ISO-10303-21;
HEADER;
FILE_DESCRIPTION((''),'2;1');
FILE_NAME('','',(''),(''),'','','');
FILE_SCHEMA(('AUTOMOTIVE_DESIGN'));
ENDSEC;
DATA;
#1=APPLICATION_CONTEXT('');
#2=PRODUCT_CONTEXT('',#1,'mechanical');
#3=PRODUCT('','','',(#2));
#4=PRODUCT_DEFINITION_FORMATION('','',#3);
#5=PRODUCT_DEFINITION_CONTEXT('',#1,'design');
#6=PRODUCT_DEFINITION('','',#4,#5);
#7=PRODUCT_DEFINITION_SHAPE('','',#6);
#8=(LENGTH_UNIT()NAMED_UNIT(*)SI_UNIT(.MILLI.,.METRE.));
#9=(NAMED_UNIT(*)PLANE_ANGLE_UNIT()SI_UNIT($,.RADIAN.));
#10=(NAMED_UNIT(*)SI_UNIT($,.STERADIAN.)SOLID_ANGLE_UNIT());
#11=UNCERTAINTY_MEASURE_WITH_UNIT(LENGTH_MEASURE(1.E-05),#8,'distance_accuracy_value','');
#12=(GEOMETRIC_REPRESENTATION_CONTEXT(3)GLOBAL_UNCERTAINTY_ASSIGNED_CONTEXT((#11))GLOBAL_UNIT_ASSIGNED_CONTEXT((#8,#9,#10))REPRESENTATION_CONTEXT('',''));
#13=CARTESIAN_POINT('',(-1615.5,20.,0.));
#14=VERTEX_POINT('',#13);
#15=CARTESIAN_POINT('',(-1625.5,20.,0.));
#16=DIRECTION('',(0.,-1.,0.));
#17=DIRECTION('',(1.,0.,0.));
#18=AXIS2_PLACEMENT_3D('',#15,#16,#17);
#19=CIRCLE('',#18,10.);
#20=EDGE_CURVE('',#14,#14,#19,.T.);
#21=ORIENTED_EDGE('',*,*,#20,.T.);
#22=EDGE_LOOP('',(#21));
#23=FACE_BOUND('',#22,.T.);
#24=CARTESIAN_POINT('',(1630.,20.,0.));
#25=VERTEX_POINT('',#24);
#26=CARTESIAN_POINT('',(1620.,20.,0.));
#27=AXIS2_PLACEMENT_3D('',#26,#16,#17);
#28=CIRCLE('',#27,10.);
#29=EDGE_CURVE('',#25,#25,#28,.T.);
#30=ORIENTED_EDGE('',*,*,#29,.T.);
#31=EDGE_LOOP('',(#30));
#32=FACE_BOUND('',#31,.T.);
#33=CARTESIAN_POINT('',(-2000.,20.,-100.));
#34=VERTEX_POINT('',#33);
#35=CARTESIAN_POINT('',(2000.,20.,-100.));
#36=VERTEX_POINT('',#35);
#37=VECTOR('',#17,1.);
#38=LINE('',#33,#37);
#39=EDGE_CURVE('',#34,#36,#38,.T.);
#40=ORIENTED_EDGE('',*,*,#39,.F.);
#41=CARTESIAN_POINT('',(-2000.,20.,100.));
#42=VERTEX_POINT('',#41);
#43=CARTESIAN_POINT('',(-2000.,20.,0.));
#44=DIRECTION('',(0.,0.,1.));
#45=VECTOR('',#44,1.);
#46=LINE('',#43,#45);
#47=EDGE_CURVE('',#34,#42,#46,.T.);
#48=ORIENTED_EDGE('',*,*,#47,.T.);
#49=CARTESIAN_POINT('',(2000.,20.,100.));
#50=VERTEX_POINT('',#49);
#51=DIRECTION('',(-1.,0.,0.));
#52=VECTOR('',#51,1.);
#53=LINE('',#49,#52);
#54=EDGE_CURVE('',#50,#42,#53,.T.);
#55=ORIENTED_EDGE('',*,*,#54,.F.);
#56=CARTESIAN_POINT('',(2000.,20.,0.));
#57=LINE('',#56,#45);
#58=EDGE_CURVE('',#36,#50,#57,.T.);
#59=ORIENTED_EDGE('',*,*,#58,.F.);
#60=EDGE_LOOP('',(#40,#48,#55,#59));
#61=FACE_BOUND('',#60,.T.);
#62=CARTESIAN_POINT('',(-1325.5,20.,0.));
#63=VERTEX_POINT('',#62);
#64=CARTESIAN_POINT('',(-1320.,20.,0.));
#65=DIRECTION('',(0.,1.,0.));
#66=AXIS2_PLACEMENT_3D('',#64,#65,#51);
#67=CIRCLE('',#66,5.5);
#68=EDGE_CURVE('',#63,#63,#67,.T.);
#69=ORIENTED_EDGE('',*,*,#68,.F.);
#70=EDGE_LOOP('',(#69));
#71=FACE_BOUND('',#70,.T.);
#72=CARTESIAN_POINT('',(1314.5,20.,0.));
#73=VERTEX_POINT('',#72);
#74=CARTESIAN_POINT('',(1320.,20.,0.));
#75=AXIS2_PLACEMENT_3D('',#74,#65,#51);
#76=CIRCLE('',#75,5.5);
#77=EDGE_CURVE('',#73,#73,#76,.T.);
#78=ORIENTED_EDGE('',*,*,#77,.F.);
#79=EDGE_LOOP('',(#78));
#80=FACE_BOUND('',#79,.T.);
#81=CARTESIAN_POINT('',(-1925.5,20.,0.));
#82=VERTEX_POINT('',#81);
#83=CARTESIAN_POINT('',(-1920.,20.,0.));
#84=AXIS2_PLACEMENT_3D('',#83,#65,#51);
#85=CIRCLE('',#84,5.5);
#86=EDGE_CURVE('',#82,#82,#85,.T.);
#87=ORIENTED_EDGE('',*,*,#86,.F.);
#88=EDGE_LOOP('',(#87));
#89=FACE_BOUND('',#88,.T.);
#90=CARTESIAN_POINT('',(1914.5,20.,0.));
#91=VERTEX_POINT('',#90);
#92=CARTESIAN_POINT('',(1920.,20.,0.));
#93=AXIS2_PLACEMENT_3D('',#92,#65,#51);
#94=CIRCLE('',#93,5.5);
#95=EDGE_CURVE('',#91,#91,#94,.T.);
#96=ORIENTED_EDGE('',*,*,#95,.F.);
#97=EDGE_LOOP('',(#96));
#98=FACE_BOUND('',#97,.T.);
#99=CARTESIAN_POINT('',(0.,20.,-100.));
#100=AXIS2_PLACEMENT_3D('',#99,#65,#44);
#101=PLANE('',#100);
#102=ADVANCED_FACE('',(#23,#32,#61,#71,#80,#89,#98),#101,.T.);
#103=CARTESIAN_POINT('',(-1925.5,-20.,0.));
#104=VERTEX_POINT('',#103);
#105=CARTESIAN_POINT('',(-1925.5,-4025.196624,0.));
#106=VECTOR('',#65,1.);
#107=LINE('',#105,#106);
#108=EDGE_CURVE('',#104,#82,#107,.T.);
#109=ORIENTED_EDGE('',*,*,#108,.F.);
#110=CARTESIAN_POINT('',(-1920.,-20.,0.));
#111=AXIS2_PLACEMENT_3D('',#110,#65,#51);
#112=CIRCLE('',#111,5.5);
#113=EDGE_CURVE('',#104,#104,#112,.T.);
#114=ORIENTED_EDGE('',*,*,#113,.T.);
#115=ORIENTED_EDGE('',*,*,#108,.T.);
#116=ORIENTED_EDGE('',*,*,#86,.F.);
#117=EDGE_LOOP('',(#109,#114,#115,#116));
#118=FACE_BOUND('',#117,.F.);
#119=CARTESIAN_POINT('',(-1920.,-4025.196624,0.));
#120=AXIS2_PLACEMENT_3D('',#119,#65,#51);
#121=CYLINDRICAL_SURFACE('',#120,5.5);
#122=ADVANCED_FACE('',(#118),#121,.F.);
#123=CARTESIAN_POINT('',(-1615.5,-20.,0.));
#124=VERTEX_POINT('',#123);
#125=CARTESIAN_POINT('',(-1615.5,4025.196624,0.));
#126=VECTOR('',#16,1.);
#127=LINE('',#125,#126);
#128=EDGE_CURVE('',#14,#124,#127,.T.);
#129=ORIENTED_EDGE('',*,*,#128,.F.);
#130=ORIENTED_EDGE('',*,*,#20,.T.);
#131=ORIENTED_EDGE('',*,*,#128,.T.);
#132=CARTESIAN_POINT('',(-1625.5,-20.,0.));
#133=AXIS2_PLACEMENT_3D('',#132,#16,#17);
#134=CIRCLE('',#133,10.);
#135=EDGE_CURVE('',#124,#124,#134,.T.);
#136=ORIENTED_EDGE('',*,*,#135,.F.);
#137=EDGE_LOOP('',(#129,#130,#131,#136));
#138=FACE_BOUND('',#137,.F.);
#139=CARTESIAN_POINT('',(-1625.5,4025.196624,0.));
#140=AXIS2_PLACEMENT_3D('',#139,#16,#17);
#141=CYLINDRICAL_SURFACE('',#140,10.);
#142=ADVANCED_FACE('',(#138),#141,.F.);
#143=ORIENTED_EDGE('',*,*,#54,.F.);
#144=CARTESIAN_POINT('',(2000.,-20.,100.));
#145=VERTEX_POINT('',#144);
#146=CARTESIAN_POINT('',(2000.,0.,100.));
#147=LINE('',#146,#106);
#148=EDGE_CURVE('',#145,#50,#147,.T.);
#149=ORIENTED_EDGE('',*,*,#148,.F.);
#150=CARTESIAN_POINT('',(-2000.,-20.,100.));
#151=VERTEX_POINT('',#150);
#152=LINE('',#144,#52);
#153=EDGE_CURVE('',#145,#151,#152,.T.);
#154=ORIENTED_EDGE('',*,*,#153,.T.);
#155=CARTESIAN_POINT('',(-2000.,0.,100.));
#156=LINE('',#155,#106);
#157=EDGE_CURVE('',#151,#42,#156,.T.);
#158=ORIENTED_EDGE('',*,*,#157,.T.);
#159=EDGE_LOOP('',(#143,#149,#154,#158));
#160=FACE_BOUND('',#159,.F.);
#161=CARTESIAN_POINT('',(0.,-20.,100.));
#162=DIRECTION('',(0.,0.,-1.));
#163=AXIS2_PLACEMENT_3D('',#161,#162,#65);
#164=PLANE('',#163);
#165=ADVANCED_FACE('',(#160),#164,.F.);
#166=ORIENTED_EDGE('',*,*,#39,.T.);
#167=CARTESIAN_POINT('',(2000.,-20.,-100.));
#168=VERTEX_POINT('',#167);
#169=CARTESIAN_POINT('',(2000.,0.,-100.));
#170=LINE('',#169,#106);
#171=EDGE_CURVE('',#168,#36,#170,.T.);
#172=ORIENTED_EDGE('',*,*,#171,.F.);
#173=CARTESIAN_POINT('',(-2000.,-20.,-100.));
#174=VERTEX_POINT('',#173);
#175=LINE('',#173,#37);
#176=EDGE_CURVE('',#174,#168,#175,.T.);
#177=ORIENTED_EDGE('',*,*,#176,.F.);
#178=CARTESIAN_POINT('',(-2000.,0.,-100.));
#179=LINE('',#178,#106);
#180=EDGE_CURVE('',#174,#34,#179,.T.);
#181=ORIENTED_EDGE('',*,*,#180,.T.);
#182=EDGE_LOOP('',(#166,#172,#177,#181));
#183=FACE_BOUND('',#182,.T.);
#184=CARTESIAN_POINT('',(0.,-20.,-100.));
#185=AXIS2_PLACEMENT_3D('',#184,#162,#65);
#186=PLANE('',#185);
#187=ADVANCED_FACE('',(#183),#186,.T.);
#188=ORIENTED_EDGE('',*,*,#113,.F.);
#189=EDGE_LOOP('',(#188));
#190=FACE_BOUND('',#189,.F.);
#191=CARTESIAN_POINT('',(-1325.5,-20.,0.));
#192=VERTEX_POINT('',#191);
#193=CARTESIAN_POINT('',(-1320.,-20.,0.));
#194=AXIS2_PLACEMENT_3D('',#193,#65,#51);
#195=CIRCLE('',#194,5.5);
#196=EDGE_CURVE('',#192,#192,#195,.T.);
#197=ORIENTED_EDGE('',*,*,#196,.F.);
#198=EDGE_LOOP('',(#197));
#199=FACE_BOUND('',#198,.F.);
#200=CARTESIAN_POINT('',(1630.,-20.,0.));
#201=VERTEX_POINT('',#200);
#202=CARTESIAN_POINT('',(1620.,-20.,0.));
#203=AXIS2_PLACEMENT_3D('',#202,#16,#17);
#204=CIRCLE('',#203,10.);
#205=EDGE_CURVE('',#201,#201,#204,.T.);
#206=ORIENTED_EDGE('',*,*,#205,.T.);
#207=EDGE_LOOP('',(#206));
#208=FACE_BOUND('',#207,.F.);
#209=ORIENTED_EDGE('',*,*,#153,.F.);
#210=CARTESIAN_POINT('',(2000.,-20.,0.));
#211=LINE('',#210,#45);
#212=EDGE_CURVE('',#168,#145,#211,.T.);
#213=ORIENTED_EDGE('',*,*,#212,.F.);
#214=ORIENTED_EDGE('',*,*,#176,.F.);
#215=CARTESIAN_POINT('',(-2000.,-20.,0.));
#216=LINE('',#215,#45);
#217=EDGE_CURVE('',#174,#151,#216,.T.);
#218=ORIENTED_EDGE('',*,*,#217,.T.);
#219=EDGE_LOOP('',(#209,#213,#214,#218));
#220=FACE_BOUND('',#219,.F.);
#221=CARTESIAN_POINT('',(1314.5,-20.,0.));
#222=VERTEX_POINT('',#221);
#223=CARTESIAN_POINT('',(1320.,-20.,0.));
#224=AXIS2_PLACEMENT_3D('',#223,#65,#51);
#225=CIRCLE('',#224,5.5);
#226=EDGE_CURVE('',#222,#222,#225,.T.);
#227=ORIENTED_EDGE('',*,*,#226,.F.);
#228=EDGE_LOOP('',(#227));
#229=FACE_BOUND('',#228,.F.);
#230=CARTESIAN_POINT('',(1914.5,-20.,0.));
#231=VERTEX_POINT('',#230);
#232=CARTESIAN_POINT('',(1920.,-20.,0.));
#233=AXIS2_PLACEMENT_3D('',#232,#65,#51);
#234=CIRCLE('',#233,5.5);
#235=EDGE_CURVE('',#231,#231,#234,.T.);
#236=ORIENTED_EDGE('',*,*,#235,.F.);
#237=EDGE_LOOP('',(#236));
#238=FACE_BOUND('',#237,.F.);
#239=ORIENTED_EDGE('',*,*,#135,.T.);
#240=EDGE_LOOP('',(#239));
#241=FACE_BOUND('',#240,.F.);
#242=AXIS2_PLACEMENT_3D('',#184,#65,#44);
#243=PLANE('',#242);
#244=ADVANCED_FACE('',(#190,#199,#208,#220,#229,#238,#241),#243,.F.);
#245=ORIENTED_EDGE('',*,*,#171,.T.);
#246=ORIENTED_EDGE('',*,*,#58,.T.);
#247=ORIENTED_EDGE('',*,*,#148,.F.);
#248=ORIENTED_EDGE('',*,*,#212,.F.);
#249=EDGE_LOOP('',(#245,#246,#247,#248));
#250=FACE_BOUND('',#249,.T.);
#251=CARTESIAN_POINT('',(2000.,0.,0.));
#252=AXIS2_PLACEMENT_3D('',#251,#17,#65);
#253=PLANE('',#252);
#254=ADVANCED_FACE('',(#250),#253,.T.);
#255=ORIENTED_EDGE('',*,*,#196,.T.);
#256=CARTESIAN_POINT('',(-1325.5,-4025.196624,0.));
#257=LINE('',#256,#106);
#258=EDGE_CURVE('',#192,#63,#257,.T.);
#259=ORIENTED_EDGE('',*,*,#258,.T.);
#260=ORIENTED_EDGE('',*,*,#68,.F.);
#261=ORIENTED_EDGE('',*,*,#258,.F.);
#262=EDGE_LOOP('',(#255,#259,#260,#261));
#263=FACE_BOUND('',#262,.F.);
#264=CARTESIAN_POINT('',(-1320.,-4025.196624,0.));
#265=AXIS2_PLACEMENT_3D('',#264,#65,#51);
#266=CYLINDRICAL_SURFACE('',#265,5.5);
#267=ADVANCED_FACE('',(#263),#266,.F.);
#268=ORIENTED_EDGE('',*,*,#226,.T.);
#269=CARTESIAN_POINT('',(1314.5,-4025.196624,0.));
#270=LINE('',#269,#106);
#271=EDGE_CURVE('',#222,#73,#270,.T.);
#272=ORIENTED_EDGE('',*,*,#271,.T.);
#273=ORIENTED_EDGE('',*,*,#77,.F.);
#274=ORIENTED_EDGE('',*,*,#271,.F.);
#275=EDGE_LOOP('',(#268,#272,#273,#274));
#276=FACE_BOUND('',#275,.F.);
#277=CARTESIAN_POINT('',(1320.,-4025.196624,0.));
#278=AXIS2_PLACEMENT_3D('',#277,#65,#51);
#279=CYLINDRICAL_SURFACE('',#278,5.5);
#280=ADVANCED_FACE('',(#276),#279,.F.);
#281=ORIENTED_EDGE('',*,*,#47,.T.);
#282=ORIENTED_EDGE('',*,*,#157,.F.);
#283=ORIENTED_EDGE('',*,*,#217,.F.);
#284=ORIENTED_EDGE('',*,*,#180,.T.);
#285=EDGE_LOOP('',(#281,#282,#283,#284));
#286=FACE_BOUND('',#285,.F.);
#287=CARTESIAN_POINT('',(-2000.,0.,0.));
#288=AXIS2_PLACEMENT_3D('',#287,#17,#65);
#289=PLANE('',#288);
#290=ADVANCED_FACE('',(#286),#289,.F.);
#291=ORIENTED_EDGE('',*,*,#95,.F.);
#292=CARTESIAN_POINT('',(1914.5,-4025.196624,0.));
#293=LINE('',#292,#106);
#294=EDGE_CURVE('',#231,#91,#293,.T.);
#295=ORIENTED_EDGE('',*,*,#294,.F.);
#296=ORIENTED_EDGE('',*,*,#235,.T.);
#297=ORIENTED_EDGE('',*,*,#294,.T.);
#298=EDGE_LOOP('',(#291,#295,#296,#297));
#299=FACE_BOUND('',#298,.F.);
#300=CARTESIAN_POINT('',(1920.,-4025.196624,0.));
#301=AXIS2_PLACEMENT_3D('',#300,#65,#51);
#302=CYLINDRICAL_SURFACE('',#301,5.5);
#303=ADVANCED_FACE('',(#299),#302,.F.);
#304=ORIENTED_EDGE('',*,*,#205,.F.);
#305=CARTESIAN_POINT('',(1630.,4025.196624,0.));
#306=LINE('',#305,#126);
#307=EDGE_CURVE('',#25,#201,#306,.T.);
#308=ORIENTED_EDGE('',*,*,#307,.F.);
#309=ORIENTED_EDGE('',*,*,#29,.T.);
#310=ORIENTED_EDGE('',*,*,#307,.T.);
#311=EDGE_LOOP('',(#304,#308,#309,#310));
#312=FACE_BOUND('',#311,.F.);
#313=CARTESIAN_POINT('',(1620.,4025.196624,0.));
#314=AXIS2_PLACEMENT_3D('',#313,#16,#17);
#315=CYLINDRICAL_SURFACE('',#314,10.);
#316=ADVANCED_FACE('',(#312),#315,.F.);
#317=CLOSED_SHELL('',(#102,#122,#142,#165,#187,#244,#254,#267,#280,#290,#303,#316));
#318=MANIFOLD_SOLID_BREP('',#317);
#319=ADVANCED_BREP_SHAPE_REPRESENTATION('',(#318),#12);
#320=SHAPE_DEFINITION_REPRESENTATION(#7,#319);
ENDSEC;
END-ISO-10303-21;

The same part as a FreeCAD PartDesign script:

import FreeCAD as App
import Part
import Sketcher
from FreeCAD import Vector
Q = App.Units.Quantity

doc = App.newDocument("Part")
body = doc.addObject("PartDesign::Body", "Body")

# Sketch on YZ plane
sketch1 = body.newObject("Sketcher::SketchObject", "Sketch")
sketch1.AttachmentSupport = (doc.getObject("YZ_Plane"), [""])
sketch1.MapMode = "FlatFace"
sketch1.addGeometry([
    Part.LineSegment(Vector(-20, 100, 0), Vector(-20, -100, 0)),
    Part.LineSegment(Vector(-20, -100, 0), Vector(20, -100, 0)),
    Part.LineSegment(Vector(20, -100, 0), Vector(20, 100, 0)),
    Part.LineSegment(Vector(20, 100, 0), Vector(-20, 100, 0)),
], False)
sketch1.addConstraint([
    Sketcher.Constraint("Coincident", 0, 2, 1, 1),
    Sketcher.Constraint("Coincident", 1, 2, 2, 1),
    Sketcher.Constraint("Coincident", 2, 2, 3, 1),
    Sketcher.Constraint("Coincident", 3, 2, 0, 1),
    Sketcher.Constraint("Vertical", 0),
    Sketcher.Constraint("Horizontal", 1),
    Sketcher.Constraint("Vertical", 2),
    Sketcher.Constraint("Horizontal", 3),
    Sketcher.Constraint("Symmetric", 0, 2, 2, 2, -1, 1),
    Sketcher.Constraint("DistanceX", 1, 1, 1, 2, Q("40 mm")),
    Sketcher.Constraint("DistanceY", 0, 2, 0, 1, Q("200 mm")),
])
pad1 = body.newObject("PartDesign::Pad", "Pad")
pad1.Profile = sketch1
pad1.Length = 4000
pad1.Midplane = True

# Sketch on XZ plane
sketch2 = body.newObject("Sketcher::SketchObject", "Sketch001")
sketch2.AttachmentSupport = (doc.getObject("XZ_Plane"), [""])
sketch2.MapMode = "FlatFace"
sketch2.AttachmentOffset = App.Placement(Vector(0, 0, 20), App.Rotation())
sketch2.addGeometry([
    Part.Circle(Vector(-1920, 0, 0), Vector(0, 0, 1), 6),
    Part.Circle(Vector(-1320, 0, 0), Vector(0, 0, 1), 6),
    Part.Circle(Vector(1320, 0, 0), Vector(0, 0, 1), 6),
    Part.Circle(Vector(1920, 0, 0), Vector(0, 0, 1), 6),
], False)
sketch2.addConstraint([
    Sketcher.Constraint("Equal", 0, 1),
    Sketcher.Constraint("Equal", 1, 2),
    Sketcher.Constraint("Equal", 2, 3),
    Sketcher.Constraint("Symmetric", 1, 3, 2, 3, -1, 1),
    Sketcher.Constraint("Symmetric", 0, 3, 3, 3, -1, 1),
    Sketcher.Constraint("PointOnObject", 0, 3, -1),
    Sketcher.Constraint("PointOnObject", 1, 3, -1),
    Sketcher.Constraint("Diameter", 0, Q("11 mm")),
    Sketcher.Constraint("DistanceX", 0, 3, -1, 1, Q("1920 mm")),
    Sketcher.Constraint("DistanceX", 1, 3, -1, 1, Q("1320 mm")),
])
doc.recompute()
hole = body.newObject("PartDesign::Hole", "Hole")
hole.Profile = sketch2
hole.ThreadType = "None"
hole.Diameter = 11
hole.DepthType = "ThroughAll"

# Sketch on XZ plane
sketch3 = body.newObject("Sketcher::SketchObject", "Sketch002")
sketch3.AttachmentSupport = (doc.getObject("XZ_Plane"), [""])
sketch3.MapMode = "FlatFace"
sketch3.AttachmentOffset = App.Placement(Vector(0, 0, -20), App.Rotation())
sketch3.addGeometry([
    Part.Circle(Vector(-1626, 0, 0), Vector(0, 0, 1), 10),
    Part.Circle(Vector(1620, 0, 0), Vector(0, 0, 1), 10),
], False)
sketch3.addConstraint([
    Sketcher.Constraint("Equal", 0, 1),
    Sketcher.Constraint("PointOnObject", 0, 3, -1),
    Sketcher.Constraint("PointOnObject", 1, 3, -1),
    Sketcher.Constraint("Diameter", 0, Q("20 mm")),
    Sketcher.Constraint("DistanceX", -1, 1, 1, 3, Q("1620 mm")),
    Sketcher.Constraint("DistanceX", 0, 3, -1, 1, Q("1625.5 mm")),
])
doc.recompute()
hole2 = body.newObject("PartDesign::Hole", "Hole001")
hole2.Profile = sketch3
hole2.ThreadType = "None"
hole2.Diameter = 20
hole2.DepthType = "ThroughAll"
hole2.Reversed = True

doc.recompute()
